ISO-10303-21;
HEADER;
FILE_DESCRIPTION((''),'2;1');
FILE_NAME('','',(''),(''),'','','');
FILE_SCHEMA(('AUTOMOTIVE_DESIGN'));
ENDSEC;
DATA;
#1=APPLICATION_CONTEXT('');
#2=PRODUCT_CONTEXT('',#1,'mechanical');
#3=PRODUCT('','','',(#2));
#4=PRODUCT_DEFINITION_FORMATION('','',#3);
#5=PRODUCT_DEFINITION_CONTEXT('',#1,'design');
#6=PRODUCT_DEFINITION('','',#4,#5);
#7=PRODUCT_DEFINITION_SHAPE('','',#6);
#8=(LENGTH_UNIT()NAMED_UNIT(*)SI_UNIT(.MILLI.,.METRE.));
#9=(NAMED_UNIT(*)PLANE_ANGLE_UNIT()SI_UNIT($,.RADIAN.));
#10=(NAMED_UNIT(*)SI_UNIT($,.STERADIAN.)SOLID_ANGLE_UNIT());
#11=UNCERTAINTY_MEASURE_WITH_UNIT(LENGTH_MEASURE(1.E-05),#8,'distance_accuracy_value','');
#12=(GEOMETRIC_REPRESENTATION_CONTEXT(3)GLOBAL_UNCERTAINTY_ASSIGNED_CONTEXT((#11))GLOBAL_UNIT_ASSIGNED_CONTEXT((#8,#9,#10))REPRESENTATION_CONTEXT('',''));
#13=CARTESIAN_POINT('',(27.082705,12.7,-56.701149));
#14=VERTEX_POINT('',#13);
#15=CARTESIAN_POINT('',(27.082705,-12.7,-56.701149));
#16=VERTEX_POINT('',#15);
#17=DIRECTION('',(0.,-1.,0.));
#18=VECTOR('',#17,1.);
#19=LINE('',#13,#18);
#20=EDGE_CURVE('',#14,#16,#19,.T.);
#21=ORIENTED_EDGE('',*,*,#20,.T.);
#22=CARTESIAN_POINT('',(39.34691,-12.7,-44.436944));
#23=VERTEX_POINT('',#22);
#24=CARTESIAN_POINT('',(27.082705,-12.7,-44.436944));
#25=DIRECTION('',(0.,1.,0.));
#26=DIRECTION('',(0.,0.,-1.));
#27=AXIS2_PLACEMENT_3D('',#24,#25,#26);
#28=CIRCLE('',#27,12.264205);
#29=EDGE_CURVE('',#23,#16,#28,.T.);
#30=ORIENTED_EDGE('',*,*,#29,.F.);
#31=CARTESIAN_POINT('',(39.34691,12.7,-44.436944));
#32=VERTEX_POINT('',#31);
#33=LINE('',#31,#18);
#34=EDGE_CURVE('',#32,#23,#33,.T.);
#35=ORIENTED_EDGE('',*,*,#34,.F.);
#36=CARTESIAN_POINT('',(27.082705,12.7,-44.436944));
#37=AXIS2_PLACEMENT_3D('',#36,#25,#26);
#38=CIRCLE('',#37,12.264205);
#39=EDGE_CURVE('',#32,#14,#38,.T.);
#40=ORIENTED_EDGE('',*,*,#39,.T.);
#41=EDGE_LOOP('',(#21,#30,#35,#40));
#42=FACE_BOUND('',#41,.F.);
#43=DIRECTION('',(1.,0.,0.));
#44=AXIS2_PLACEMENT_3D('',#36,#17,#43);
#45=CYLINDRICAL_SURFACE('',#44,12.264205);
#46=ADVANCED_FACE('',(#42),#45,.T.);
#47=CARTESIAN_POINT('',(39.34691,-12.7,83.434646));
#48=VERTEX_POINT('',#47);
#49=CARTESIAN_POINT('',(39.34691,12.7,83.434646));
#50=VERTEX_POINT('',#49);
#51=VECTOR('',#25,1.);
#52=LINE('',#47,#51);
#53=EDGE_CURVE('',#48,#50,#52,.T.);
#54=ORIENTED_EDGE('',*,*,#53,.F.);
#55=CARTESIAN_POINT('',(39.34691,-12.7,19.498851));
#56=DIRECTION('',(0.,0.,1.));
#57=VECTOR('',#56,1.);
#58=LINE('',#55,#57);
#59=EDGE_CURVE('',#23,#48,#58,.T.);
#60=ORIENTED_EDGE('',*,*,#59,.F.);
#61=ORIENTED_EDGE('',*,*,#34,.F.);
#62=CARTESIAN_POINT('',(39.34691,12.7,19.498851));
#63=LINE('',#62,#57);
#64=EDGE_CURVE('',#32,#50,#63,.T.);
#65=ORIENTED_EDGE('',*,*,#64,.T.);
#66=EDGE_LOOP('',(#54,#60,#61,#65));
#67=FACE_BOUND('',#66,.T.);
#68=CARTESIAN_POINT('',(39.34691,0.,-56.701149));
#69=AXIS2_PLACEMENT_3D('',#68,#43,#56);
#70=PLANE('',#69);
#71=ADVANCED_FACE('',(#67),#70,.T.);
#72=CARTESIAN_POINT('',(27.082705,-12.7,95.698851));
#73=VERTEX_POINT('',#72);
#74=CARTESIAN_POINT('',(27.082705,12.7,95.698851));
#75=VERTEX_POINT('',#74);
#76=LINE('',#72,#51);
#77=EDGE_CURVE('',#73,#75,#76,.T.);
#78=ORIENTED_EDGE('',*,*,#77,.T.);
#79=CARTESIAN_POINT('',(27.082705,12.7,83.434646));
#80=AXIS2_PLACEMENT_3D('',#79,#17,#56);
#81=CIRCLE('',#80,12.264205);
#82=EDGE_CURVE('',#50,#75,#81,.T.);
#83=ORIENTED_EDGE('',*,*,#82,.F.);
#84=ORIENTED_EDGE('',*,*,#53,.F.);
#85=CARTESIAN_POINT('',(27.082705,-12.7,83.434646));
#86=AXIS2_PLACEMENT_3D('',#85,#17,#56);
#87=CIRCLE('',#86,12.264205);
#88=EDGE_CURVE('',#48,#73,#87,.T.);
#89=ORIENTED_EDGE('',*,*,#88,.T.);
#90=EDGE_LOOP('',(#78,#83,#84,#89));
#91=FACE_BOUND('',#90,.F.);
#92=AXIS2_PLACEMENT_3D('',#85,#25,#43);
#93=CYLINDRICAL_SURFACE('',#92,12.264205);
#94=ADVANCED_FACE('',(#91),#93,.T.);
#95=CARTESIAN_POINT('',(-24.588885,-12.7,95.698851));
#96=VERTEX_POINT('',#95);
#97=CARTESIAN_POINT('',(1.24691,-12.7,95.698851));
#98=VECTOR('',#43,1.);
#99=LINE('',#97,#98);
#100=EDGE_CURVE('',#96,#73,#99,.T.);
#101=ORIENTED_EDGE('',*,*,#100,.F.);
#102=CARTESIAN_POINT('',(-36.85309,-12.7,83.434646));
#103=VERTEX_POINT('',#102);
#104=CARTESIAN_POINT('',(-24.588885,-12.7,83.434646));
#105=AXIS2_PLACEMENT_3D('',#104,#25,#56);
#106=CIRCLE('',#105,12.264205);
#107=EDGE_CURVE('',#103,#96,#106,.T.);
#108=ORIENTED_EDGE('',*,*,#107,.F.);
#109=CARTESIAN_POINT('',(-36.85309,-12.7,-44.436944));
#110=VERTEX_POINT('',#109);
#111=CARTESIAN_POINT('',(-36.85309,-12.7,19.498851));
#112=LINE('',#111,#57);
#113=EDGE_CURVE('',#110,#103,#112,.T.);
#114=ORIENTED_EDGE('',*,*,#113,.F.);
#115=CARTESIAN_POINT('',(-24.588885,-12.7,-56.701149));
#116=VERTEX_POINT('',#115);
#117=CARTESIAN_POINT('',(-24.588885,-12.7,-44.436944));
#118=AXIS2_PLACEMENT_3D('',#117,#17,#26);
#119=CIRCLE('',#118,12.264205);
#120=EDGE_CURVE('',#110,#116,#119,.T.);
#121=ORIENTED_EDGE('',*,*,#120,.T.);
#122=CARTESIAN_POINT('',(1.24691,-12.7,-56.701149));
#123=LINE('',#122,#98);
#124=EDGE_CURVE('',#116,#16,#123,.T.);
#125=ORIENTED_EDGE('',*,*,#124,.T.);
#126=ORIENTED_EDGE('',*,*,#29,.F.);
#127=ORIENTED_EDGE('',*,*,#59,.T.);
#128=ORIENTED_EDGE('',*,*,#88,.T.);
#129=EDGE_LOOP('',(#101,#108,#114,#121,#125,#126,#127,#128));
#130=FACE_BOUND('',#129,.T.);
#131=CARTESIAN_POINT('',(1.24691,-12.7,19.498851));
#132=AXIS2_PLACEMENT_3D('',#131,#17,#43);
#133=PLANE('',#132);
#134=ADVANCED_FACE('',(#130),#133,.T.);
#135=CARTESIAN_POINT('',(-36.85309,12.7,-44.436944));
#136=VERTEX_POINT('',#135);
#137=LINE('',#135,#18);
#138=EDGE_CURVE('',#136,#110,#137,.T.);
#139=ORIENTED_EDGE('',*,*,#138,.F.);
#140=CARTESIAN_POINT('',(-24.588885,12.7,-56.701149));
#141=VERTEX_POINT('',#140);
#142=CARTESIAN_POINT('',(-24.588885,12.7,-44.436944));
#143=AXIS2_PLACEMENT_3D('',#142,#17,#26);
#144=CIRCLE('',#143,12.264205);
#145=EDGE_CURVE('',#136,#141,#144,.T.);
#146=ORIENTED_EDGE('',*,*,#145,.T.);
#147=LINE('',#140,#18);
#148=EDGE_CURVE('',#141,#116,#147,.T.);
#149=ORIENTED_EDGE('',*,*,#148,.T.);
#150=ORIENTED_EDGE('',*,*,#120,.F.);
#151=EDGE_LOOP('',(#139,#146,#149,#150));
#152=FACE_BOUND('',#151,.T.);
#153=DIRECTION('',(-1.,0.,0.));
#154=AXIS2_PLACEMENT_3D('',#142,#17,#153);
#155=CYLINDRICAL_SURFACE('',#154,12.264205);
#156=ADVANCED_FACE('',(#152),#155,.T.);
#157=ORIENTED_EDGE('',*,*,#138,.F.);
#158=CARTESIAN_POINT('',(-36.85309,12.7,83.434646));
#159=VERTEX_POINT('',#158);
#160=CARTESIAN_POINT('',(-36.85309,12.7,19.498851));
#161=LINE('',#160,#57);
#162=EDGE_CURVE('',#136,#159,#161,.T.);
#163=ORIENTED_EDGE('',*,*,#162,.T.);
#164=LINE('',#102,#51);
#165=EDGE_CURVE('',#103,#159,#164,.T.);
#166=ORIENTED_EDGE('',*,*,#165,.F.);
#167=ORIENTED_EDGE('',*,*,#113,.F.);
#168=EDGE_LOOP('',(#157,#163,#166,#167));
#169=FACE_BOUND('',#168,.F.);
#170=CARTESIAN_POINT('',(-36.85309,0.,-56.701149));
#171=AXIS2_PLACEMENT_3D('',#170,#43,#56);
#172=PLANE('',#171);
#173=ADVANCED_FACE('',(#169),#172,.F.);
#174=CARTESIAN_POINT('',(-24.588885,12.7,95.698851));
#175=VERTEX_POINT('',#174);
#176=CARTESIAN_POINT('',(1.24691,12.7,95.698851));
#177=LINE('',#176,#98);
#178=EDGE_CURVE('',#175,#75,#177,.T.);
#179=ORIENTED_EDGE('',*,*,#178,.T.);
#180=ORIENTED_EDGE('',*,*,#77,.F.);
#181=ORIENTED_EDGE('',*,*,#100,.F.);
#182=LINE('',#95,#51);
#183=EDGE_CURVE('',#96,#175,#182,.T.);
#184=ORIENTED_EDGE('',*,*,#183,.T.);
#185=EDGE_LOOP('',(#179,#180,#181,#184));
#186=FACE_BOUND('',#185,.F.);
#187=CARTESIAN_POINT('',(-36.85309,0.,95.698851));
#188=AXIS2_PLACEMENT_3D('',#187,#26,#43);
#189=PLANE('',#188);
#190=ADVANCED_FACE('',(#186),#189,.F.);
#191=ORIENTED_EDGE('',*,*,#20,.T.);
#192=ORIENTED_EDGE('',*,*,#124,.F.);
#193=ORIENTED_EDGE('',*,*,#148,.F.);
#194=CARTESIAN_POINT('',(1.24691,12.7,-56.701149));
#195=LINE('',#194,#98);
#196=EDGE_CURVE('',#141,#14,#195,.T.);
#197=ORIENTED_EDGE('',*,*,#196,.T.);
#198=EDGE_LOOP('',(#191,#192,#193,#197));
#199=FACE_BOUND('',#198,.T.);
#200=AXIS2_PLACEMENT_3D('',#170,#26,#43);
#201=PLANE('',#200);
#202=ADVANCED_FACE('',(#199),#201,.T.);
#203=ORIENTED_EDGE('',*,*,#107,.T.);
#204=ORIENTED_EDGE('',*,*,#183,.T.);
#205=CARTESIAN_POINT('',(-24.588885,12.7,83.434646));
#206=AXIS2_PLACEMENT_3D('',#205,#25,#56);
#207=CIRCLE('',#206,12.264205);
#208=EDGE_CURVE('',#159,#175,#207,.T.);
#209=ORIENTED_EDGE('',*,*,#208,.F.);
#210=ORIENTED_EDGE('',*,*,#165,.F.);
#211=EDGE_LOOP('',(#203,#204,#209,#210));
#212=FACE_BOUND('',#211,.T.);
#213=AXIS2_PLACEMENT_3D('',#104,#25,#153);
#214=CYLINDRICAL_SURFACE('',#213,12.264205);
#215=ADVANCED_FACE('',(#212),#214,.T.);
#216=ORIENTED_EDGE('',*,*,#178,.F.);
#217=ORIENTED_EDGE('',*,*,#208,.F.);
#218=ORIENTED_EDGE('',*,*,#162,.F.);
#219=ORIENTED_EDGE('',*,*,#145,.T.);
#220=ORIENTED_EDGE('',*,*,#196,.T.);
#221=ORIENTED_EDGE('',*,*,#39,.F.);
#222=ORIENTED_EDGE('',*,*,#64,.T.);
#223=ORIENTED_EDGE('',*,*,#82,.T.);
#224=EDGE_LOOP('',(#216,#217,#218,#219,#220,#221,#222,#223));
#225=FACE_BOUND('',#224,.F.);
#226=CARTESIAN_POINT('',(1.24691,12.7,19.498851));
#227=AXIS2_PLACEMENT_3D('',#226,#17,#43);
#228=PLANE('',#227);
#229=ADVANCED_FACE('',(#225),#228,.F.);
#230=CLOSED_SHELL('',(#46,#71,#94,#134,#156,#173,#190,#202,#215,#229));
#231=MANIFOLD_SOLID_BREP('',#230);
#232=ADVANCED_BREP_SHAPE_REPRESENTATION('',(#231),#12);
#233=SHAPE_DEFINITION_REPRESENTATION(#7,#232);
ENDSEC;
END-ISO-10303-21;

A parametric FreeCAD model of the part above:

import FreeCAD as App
import Part
import Sketcher

V = App.Vector
Q = App.Units.Quantity


def edges_at(feature, points):
    """Names of the edges that pass closest to the given points."""
    edges = feature.Shape.Edges
    near = lambda p: min(range(len(edges)), key=lambda i: edges[i].distToShape(Part.Vertex(*p))[0])
    return sorted({f"Edge{near(p) + 1}" for p in points})


def add_polygon(sketch, points):
    """Adds a closed chain of lines whose ends are joined by coincident constraints."""
    first, n = sketch.GeometryCount, len(points)
    for a, b in zip(points, points[1:] + points[:1]):
        sketch.addGeometry(Part.LineSegment(App.Vector(*a, 0), App.Vector(*b, 0)), False)
    for i in range(n):
        sketch.addConstraint(Sketcher.Constraint("Coincident", first + i, 2, first + (i + 1) % n, 1))

doc = App.newDocument("Part")
body = doc.addObject("PartDesign::Body", "Body")

sketch1 = body.newObject("Sketcher::SketchObject", "Sketch")
sketch1.AttachmentSupport = (doc.getObject("XZ_Plane"), [""])
sketch1.MapMode = "FlatFace"
add_polygon(sketch1, [(-36.85309, 95.698851), (-36.85309, -56.701149), (39.34691, -56.701149), (39.34691, 95.698851)])
sketch1.addConstraint(Sketcher.Constraint("Vertical", 0))
sketch1.addConstraint(Sketcher.Constraint("Horizontal", 1))
sketch1.addConstraint(Sketcher.Constraint("Vertical", 2))
sketch1.addConstraint(Sketcher.Constraint("Horizontal", 3))
sketch1.addConstraint(Sketcher.Constraint("DistanceX", 1, 1, 1, 2, Q("3 in")))
sketch1.addConstraint(Sketcher.Constraint("DistanceY", 0, 2, 0, 1, Q("6 in")))
sketch1.addConstraint(Sketcher.Constraint("DistanceX", 0, 2, -1, 1, 36.85309))
sketch1.addConstraint(Sketcher.Constraint("DistanceY", 0, 2, -1, 1, 56.701149))
pad1 = body.newObject("PartDesign::Pad", "Pad")
pad1.Profile = sketch1
pad1.Length = Q("1 in")
pad1.Midplane = True
doc.recompute()

fillet = body.newObject("PartDesign::Fillet", "Fillet")
fillet.Base = (pad1, edges_at(pad1, [
    (-36.853, 0, 95.699),
    (39.347, 0, 95.699),
    (-36.853, 0, -56.701),
    (39.347, 0, -56.701),
]))
fillet.Radius = 12.264205

doc.recompute()
